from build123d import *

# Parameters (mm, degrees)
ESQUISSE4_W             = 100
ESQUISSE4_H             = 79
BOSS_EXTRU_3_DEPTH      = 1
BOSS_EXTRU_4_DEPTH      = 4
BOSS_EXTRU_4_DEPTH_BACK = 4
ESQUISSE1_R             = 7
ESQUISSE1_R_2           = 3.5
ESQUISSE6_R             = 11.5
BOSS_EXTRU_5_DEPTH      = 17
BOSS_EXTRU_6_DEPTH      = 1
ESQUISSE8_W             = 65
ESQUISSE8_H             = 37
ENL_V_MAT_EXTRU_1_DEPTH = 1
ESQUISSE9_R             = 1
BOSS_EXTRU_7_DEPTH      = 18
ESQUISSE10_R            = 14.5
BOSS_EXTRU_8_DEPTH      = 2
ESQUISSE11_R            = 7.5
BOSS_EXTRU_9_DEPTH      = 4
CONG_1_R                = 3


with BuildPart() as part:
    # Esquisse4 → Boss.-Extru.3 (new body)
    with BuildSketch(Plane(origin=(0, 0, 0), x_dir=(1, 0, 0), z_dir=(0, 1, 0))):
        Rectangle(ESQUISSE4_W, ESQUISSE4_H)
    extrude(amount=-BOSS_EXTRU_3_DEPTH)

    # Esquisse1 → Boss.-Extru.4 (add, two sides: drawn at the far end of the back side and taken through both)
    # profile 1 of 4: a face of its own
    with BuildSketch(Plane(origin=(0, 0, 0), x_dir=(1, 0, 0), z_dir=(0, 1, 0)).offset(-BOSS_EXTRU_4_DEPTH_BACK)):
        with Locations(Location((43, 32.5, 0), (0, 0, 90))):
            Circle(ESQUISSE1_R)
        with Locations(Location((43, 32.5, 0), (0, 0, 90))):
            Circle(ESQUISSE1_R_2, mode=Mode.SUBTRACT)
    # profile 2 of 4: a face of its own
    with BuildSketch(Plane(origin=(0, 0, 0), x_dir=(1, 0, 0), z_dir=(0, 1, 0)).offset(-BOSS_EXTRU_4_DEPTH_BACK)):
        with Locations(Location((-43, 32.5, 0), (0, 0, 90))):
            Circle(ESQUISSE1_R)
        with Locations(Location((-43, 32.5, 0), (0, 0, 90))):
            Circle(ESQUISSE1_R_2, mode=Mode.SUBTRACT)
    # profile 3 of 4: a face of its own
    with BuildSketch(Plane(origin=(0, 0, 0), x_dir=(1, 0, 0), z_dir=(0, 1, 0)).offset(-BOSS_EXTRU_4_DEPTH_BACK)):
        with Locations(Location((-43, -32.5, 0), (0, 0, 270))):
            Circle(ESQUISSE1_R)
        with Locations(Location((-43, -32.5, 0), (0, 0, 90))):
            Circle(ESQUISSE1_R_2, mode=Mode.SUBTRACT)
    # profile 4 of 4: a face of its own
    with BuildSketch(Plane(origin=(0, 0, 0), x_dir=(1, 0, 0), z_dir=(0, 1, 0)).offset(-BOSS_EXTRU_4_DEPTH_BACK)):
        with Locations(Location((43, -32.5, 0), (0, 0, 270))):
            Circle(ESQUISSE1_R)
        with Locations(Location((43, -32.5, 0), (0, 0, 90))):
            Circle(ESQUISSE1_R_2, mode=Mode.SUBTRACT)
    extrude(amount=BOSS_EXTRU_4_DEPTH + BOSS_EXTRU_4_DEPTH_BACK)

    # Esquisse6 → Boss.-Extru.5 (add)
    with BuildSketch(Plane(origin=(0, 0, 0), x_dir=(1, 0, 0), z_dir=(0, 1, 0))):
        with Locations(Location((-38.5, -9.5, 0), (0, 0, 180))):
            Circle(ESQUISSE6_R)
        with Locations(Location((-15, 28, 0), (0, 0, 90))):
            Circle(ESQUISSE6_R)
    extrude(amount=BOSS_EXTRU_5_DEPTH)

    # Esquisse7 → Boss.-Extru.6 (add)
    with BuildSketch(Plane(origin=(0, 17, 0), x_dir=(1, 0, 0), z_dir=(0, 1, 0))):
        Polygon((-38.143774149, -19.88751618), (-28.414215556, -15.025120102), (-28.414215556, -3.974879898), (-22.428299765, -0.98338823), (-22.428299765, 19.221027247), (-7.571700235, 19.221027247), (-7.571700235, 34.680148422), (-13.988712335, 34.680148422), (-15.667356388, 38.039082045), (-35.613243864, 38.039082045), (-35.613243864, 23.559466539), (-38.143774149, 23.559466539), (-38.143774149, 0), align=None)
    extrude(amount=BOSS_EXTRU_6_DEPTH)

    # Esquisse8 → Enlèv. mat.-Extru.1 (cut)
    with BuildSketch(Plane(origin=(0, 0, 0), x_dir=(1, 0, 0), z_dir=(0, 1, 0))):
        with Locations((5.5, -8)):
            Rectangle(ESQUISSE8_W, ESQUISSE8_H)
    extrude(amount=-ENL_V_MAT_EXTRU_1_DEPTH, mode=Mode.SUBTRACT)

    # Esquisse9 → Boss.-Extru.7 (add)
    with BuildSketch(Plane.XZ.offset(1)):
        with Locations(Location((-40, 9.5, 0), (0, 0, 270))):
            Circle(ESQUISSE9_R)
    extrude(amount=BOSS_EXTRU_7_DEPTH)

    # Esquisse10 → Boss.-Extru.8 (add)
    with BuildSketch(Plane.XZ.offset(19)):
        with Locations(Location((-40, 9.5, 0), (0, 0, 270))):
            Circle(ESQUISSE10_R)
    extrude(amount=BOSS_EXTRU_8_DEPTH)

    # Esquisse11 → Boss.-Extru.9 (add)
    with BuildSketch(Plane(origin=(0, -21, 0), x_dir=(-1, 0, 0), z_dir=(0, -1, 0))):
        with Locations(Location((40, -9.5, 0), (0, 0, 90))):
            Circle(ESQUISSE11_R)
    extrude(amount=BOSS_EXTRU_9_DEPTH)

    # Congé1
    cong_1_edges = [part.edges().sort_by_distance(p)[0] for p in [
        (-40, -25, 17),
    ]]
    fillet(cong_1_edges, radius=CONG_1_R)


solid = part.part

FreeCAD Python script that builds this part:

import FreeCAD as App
import Part
import Sketcher
Q = App.Units.Quantity


def edges_at(feature, points):
    """Names of the edges that pass closest to the given points."""
    edges = feature.Shape.Edges
    near = lambda p: min(range(len(edges)), key=lambda i: edges[i].distToShape(Part.Vertex(*p))[0])
    return sorted({f"Edge{near(p) + 1}" for p in points})


def add_polygon(sketch, points):
    """Adds a closed chain of lines whose ends are joined by coincident constraints."""
    first, n = sketch.GeometryCount, len(points)
    for a, b in zip(points, points[1:] + points[:1]):
        sketch.addGeometry(Part.LineSegment(App.Vector(*a, 0), App.Vector(*b, 0)), False)
    for i in range(n):
        sketch.addConstraint(Sketcher.Constraint("Coincident", first + i, 2, first + (i + 1) % n, 1))

doc = App.newDocument("Part")
params = doc.addObject("Spreadsheet::Sheet", "Params")
for row, (alias, value) in enumerate([
    ("sketch1_width", "100 mm"),
    ("sketch1_height", "79 mm"),
    ("pad1_length", "1 mm"),
    ("sketch2_diameter", "14 mm"),
    ("sketch2_diameter2", "7 mm"),
    ("pad2_length", "4 mm"),
    ("pad2_length2", "4 mm"),
    ("sketch3_diameter", "23 mm"),
    ("pad3_length", "17 mm"),
    ("pad4_length", "1 mm"),
    ("sketch5_width", "65 mm"),
    ("sketch5_height", "37 mm"),
    ("pocket1_length", "1 mm"),
    ("sketch6_diameter", "2 mm"),
    ("pad5_length", "18 mm"),
    ("sketch7_diameter", "29 mm"),
    ("pad6_length", "2 mm"),
    ("sketch8_diameter", "15 mm"),
    ("pad7_length", "4 mm"),
    ("fillet_radius", "3 mm"),
], start=1):
    params.set(f"A{row}", alias)
    params.set(f"B{row}", "=" + value)
    params.setAlias(f"B{row}", alias)

body = doc.addObject("PartDesign::Body", "Body")

# Sketch on XZ plane
sketch1 = body.newObject("Sketcher::SketchObject", "Sketch")
sketch1.AttachmentSupport = (doc.getObject("XZ_Plane"), [""])
sketch1.MapMode = "FlatFace"
add_polygon(sketch1, [(-50, -40), (-50, 40), (50, 40), (50, -40)])  # lines 0-3
sketch1.addConstraint([
    Sketcher.Constraint("Vertical", 0),
    Sketcher.Constraint("Horizontal", 1),
    Sketcher.Constraint("Vertical", 2),
    Sketcher.Constraint("Horizontal", 3),
    Sketcher.Constraint("Symmetric", 0, 2, 2, 2, -1, 1),
    Sketcher.Constraint("DistanceX", 1, 1, 1, 2, Q("100 mm")),
    Sketcher.Constraint("DistanceY", 0, 1, 0, 2, Q("79 mm")),
])
sketch1.setExpression("Constraints[9]", "Params.sketch1_width")
sketch1.setExpression("Constraints[10]", "Params.sketch1_height")
pad1 = body.newObject("PartDesign::Pad", "Pad")
pad1.Profile = sketch1
pad1.setExpression("Length", "Params.pad1_length")

# Sketch on XZ plane
sketch2 = body.newObject("Sketcher::SketchObject", "Sketch001")
sketch2.AttachmentSupport = (doc.getObject("XZ_Plane"), [""])
sketch2.MapMode = "FlatFace"
sketch2.addGeometry([
    Part.Circle(App.Vector(43, -32.5, 0), App.Vector(0, 0, 1), 7),  # 0
    Part.Circle(App.Vector(43, -32.5, 0), App.Vector(0, 0, 1), 3.5),  # 1
    Part.Circle(App.Vector(-43, -32.5, 0), App.Vector(0, 0, 1), 7),  # 2
    Part.Circle(App.Vector(-43, -32.5, 0), App.Vector(0, 0, 1), 3.5),  # 3
    Part.Circle(App.Vector(-43, 32.5, 0), App.Vector(0, 0, 1), 7),  # 4
    Part.Circle(App.Vector(-43, 32.5, 0), App.Vector(0, 0, 1), 3.5),  # 5
    Part.Circle(App.Vector(43, 32.5, 0), App.Vector(0, 0, 1), 7),  # 6
    Part.Circle(App.Vector(43, 32.5, 0), App.Vector(0, 0, 1), 3.5),  # 7
], False)
sketch2.addConstraint([
    Sketcher.Constraint("Coincident", 1, 3, 0, 3),
    Sketcher.Constraint("Coincident", 3, 3, 2, 3),
    Sketcher.Constraint("Coincident", 5, 3, 4, 3),
    Sketcher.Constraint("Coincident", 7, 3, 6, 3),
    Sketcher.Constraint("Equal", 0, 2),
    Sketcher.Constraint("Equal", 1, 3),
    Sketcher.Constraint("Equal", 2, 4),
    Sketcher.Constraint("Equal", 3, 5),
    Sketcher.Constraint("Equal", 4, 6),
    Sketcher.Constraint("Equal", 5, 7),
    Sketcher.Constraint("Symmetric", 0, 3, 4, 3, -1, 1),
    Sketcher.Constraint("Symmetric", 2, 3, 6, 3, -1, 1),
    Sketcher.Constraint("Symmetric", 0, 3, 2, 3, -2),
    Sketcher.Constraint("Diameter", 0, Q("14 mm")),
    Sketcher.Constraint("Diameter", 1, Q("7 mm")),
    Sketcher.Constraint("DistanceX", -1, 1, 0, 3, Q("43 mm")),
    Sketcher.Constraint("DistanceY", 2, 3, 4, 3, Q("65 mm")),
])
sketch2.setExpression("Constraints[13]", "Params.sketch2_diameter")
sketch2.setExpression("Constraints[14]", "Params.sketch2_diameter2")
pad2 = body.newObject("PartDesign::Pad", "Pad001")
pad2.Profile = sketch2
pad2.Type = "TwoLengths"
pad2.setExpression("Length", "Params.pad2_length")
pad2.setExpression("Length2", "Params.pad2_length2")
pad2.Reversed = True

# Sketch on XZ plane
sketch3 = body.newObject("Sketcher::SketchObject", "Sketch002")
sketch3.AttachmentSupport = (doc.getObject("XZ_Plane"), [""])
sketch3.MapMode = "FlatFace"
sketch3.addGeometry([
    Part.Circle(App.Vector(-38, 10, 0), App.Vector(0, 0, 1), 12),
    Part.Circle(App.Vector(-15, -28, 0), App.Vector(0, 0, 1), 12),
], False)
sketch3.addConstraint([
    Sketcher.Constraint("Equal", 0, 1),
    Sketcher.Constraint("Diameter", 0, Q("23 mm")),
    Sketcher.Constraint("DistanceX", 1, 3, -1, 1, Q("15 mm")),
    Sketcher.Constraint("DistanceY", 1, 3, -1, 1, Q("28 mm")),
    Sketcher.Constraint("DistanceX", 0, 3, -1, 1, Q("38.5 mm")),
    Sketcher.Constraint("DistanceY", -1, 1, 0, 3, Q("9.5 mm")),
])
sketch3.setExpression("Constraints[1]", "Params.sketch3_diameter")
pad3 = body.newObject("PartDesign::Pad", "Pad002")
pad3.Profile = sketch3
pad3.setExpression("Length", "Params.pad3_length")
pad3.Reversed = True

# Sketch on XZ plane
sketch4 = body.newObject("Sketcher::SketchObject", "Sketch003")
sketch4.AttachmentSupport = (doc.getObject("XZ_Plane"), [""])
sketch4.MapMode = "FlatFace"
sketch4.AttachmentOffset = App.Placement(App.Vector(0, 0, -17), App.Rotation())
add_polygon(sketch4, [(-38.1, 19.9), (-28.4, 15), (-28.4, 4), (-22.4, 1), (-22.4, -19.2), (-7.6, -19.2), (-7.6, -34.7), (-14, -34.7), (-15.7, -38), (-35.6, -38), (-35.6, -23.6), (-38.1, -23.6)])  # lines 0-11
sketch4.addConstraint([
    Sketcher.Constraint("Vertical", 1),
    Sketcher.Constraint("Vertical", 3),
    Sketcher.Constraint("Horizontal", 4),
    Sketcher.Constraint("Vertical", 5),
    Sketcher.Constraint("Horizontal", 6),
    Sketcher.Constraint("Horizontal", 8),
    Sketcher.Constraint("Vertical", 9),
    Sketcher.Constraint("Horizontal", 10),
    Sketcher.Constraint("Vertical", 11),
    Sketcher.Constraint("Parallel", 0, 2),
    Sketcher.Constraint("Perpendicular", 2, 7),
    Sketcher.Constraint("DistanceX", 4, 1, 4, 2, Q("14.8566 mm")),
    Sketcher.Constraint("Distance", 2, Q("6.691802 mm")),
    Sketcher.Constraint("DistanceX", 10, 2, 10, 1, Q("2.53053 mm")),
    Sketcher.Constraint("DistanceY", 1, 2, 1, 1, Q("11.05024 mm")),
    Sketcher.Constraint("DistanceY", 5, 2, 5, 1, Q("15.459121 mm")),
    Sketcher.Constraint("DistanceX", 2, 2, -1, 1, Q("22.4283 mm")),
    Sketcher.Constraint("Distance", 0, Q("10.876912 mm")),
    Sketcher.Constraint("DistanceX", 6, 2, 6, 1, Q("6.417012 mm")),
    Sketcher.Constraint("DistanceX", 8, 2, 8, 1, Q("19.945887 mm")),
    Sketcher.Constraint("DistanceY", 3, 2, 3, 1, Q("20.204415 mm")),
    Sketcher.Constraint("DistanceY", 9, 1, 9, 2, Q("14.479616 mm")),
    Sketcher.Constraint("DistanceY", 11, 1, 11, 2, Q("43.446983 mm")),
    Sketcher.Constraint("DistanceY", -1, 1, 0, 2, Q("15.02512 mm")),
])
pad4 = body.newObject("PartDesign::Pad", "Pad003")
pad4.Profile = sketch4
pad4.setExpression("Length", "Params.pad4_length")
pad4.Reversed = True

# Sketch on XZ plane
sketch5 = body.newObject("Sketcher::SketchObject", "Sketch004")
sketch5.AttachmentSupport = (doc.getObject("XZ_Plane"), [""])
sketch5.MapMode = "FlatFace"
add_polygon(sketch5, [(-27, -10), (-27, 26), (38, 26), (38, -10)])  # lines 0-3
sketch5.addConstraint([
    Sketcher.Constraint("Vertical", 0),
    Sketcher.Constraint("Horizontal", 1),
    Sketcher.Constraint("Vertical", 2),
    Sketcher.Constraint("Horizontal", 3),
    Sketcher.Constraint("DistanceX", 1, 1, 1, 2, Q("65 mm")),
    Sketcher.Constraint("DistanceY", 0, 1, 0, 2, Q("37 mm")),
    Sketcher.Constraint("DistanceX", 0, 2, -1, 1, Q("27 mm")),
    Sketcher.Constraint("DistanceY", -1, 1, 0, 2, Q("26.5 mm")),
])
sketch5.setExpression("Constraints[8]", "Params.sketch5_width")
sketch5.setExpression("Constraints[9]", "Params.sketch5_height")
pocket1 = body.newObject("PartDesign::Pocket", "Pocket")
pocket1.Profile = sketch5
pocket1.setExpression("Length", "Params.pocket1_length")
pocket1.Reversed = True

# Sketch on XZ plane
sketch6 = body.newObject("Sketcher::SketchObject", "Sketch005")
sketch6.AttachmentSupport = (doc.getObject("XZ_Plane"), [""])
sketch6.MapMode = "FlatFace"
sketch6.AttachmentOffset = App.Placement(App.Vector(0, 0, 1), App.Rotation())
sketch6.addGeometry(Part.Circle(App.Vector(-40, 9.5, 0), App.Vector(0, 0, 1), 1), False)
sketch6.addConstraint([
    Sketcher.Constraint("Diameter", 0, Q("2 mm")),
    Sketcher.Constraint("DistanceX", 0, 3, -1, 1, Q("40 mm")),
    Sketcher.Constraint("DistanceY", -1, 1, 0, 3, Q("9.5 mm")),
])
sketch6.setExpression("Constraints[0]", "Params.sketch6_diameter")
pad5 = body.newObject("PartDesign::Pad", "Pad004")
pad5.Profile = sketch6
pad5.setExpression("Length", "Params.pad5_length")

# Sketch on XZ plane
sketch7 = body.newObject("Sketcher::SketchObject", "Sketch006")
sketch7.AttachmentSupport = (doc.getObject("XZ_Plane"), [""])
sketch7.MapMode = "FlatFace"
sketch7.AttachmentOffset = App.Placement(App.Vector(0, 0, 19), App.Rotation())
sketch7.addGeometry(Part.Circle(App.Vector(-40, 10, 0), App.Vector(0, 0, 1), 14), False)
sketch7.addConstraint([
    Sketcher.Constraint("Diameter", 0, Q("29 mm")),
    Sketcher.Constraint("DistanceX", 0, 3, -1, 1, Q("40 mm")),
    Sketcher.Constraint("DistanceY", -1, 1, 0, 3, Q("9.5 mm")),
])
sketch7.setExpression("Constraints[0]", "Params.sketch7_diameter")
pad6 = body.newObject("PartDesign::Pad", "Pad005")
pad6.Profile = sketch7
pad6.setExpression("Length", "Params.pad6_length")

# Sketch on XZ plane
sketch8 = body.newObject("Sketcher::SketchObject", "Sketch007")
sketch8.AttachmentSupport = (doc.getObject("XZ_Plane"), [""])
sketch8.MapMode = "FlatFace"
sketch8.AttachmentOffset = App.Placement(App.Vector(0, 0, 21), App.Rotation())
sketch8.addGeometry(Part.Circle(App.Vector(-40, 10, 0), App.Vector(0, 0, 1), 8), False)
sketch8.addConstraint([
    Sketcher.Constraint("Diameter", 0, Q("15 mm")),
    Sketcher.Constraint("DistanceX", 0, 3, -1, 1, Q("40 mm")),
    Sketcher.Constraint("DistanceY", -1, 1, 0, 3, Q("9.5 mm")),
])
sketch8.setExpression("Constraints[0]", "Params.sketch8_diameter")
pad7 = body.newObject("PartDesign::Pad", "Pad006")
pad7.Profile = sketch8
pad7.setExpression("Length", "Params.pad7_length")
doc.recompute()

fillet = body.newObject("PartDesign::Fillet", "Fillet")
fillet.Base = (pad7, edges_at(pad7, [(-40, -25, 17)]))
fillet.setExpression("Radius", "Params.fillet_radius")

doc.recompute()
